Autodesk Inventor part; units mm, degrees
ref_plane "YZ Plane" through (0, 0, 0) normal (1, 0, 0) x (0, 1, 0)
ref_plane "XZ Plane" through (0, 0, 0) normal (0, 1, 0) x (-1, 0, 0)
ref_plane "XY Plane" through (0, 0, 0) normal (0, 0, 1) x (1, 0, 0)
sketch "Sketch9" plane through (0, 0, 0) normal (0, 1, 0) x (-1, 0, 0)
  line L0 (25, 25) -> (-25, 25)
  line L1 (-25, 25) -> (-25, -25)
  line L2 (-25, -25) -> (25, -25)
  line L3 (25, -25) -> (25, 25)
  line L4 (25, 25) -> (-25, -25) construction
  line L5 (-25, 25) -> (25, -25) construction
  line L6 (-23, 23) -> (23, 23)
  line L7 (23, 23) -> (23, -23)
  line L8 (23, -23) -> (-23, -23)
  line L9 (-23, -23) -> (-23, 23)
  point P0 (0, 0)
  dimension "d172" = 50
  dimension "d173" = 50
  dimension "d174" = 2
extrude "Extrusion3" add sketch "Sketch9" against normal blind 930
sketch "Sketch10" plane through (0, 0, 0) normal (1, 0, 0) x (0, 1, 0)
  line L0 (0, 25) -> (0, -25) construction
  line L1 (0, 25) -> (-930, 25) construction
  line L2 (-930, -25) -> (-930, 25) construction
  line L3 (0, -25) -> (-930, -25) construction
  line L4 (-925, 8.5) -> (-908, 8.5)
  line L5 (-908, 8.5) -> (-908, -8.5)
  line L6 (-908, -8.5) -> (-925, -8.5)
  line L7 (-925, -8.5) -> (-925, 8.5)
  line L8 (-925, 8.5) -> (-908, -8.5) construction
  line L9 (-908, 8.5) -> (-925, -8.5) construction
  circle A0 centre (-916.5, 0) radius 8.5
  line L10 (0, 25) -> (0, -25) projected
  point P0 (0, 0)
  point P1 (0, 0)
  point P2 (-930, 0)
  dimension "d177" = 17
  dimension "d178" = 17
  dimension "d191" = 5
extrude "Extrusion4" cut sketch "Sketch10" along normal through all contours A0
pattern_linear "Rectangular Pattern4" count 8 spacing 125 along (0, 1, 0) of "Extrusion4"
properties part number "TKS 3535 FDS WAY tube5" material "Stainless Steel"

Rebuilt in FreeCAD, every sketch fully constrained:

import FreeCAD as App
import Part
import Sketcher


def add_polygon(sketch, points):
    """Adds a closed chain of lines whose ends are joined by coincident constraints."""
    first, n = sketch.GeometryCount, len(points)
    for a, b in zip(points, points[1:] + points[:1]):
        sketch.addGeometry(Part.LineSegment(App.Vector(*a, 0), App.Vector(*b, 0)), False)
    for i in range(n):
        sketch.addConstraint(Sketcher.Constraint("Coincident", first + i, 2, first + (i + 1) % n, 1))

doc = App.newDocument("Part")
params = doc.addObject("Spreadsheet::Sheet", "Params")
for row, (alias, value) in enumerate([
    ("sketch1_width", "50 mm"),
    ("pad1_length", "930 mm"),
    ("sketch2_diameter", "17 mm"),
    ("linearpattern_pitch", "125 mm"),
], start=1):
    params.set(f"A{row}", alias)
    params.set(f"B{row}", "=" + value)
    params.setAlias(f"B{row}", alias)

body = doc.addObject("PartDesign::Body", "Body")

sketch1 = body.newObject("Sketcher::SketchObject", "Sketch")
sketch1.AttachmentSupport = (doc.getObject("XZ_Plane"), [""])
sketch1.MapMode = "FlatFace"
add_polygon(sketch1, [(-25, -25), (-25, 25), (25, 25), (25, -25)])
add_polygon(sketch1, [(23, -23), (23, 23), (-23, 23), (-23, -23)])
sketch1.addConstraint([
    Sketcher.Constraint("Vertical", 0),
    Sketcher.Constraint("Horizontal", 1),
    Sketcher.Constraint("Vertical", 2),
    Sketcher.Constraint("Horizontal", 3),
    Sketcher.Constraint("Vertical", 4),
    Sketcher.Constraint("Horizontal", 5),
    Sketcher.Constraint("Vertical", 6),
    Sketcher.Constraint("Horizontal", 7),
    Sketcher.Constraint("Symmetric", 0, 2, 2, 2, -1, 1),
    Sketcher.Constraint("Symmetric", 4, 2, 6, 2, -1, 1),
    Sketcher.Constraint("Equal", 3, 0),
    Sketcher.Constraint("Equal", 7, 4),
    Sketcher.Constraint("DistanceX", 1, 1, 1, 2, 50.0),
    Sketcher.Constraint("DistanceX", 4, 2, 1, 2, 2.0),
])
sketch1.setExpression("Constraints[20]", "Params.sketch1_width")
pad1 = body.newObject("PartDesign::Pad", "Pad")
pad1.Profile = sketch1
pad1.setExpression("Length", "Params.pad1_length")

sketch2 = body.newObject("Sketcher::SketchObject", "Sketch001")
sketch2.AttachmentSupport = (doc.getObject("YZ_Plane"), [""])
sketch2.MapMode = "FlatFace"
sketch2.addGeometry(Part.Circle(App.Vector(-916.5, 0, 0), App.Vector(0, 0, 1), 8.5), False)
sketch2.addConstraint([
    Sketcher.Constraint("PointOnObject", 0, 3, -1),
    Sketcher.Constraint("Diameter", 0, 17.0),
    Sketcher.Constraint("DistanceX", 0, 3, -1, 1, 916.5),
])
sketch2.setExpression("Constraints[1]", "Params.sketch2_diameter")
pocket1 = body.newObject("PartDesign::Pocket", "Pocket")
pocket1.Profile = sketch2
pocket1.Type = "ThroughAll"
pocket1.Reversed = True
doc.recompute()

linearpattern = body.newObject("PartDesign::LinearPattern", "LinearPattern")
linearpattern.Originals = [pocket1]
linearpattern.Direction = (doc.getObject("Y_Axis"), [""])
linearpattern.Mode = "offset"
linearpattern.setExpression("Offset", "Params.linearpattern_pitch")
linearpattern.Occurrences = 8
body.Tip = linearpattern

doc.recompute()
